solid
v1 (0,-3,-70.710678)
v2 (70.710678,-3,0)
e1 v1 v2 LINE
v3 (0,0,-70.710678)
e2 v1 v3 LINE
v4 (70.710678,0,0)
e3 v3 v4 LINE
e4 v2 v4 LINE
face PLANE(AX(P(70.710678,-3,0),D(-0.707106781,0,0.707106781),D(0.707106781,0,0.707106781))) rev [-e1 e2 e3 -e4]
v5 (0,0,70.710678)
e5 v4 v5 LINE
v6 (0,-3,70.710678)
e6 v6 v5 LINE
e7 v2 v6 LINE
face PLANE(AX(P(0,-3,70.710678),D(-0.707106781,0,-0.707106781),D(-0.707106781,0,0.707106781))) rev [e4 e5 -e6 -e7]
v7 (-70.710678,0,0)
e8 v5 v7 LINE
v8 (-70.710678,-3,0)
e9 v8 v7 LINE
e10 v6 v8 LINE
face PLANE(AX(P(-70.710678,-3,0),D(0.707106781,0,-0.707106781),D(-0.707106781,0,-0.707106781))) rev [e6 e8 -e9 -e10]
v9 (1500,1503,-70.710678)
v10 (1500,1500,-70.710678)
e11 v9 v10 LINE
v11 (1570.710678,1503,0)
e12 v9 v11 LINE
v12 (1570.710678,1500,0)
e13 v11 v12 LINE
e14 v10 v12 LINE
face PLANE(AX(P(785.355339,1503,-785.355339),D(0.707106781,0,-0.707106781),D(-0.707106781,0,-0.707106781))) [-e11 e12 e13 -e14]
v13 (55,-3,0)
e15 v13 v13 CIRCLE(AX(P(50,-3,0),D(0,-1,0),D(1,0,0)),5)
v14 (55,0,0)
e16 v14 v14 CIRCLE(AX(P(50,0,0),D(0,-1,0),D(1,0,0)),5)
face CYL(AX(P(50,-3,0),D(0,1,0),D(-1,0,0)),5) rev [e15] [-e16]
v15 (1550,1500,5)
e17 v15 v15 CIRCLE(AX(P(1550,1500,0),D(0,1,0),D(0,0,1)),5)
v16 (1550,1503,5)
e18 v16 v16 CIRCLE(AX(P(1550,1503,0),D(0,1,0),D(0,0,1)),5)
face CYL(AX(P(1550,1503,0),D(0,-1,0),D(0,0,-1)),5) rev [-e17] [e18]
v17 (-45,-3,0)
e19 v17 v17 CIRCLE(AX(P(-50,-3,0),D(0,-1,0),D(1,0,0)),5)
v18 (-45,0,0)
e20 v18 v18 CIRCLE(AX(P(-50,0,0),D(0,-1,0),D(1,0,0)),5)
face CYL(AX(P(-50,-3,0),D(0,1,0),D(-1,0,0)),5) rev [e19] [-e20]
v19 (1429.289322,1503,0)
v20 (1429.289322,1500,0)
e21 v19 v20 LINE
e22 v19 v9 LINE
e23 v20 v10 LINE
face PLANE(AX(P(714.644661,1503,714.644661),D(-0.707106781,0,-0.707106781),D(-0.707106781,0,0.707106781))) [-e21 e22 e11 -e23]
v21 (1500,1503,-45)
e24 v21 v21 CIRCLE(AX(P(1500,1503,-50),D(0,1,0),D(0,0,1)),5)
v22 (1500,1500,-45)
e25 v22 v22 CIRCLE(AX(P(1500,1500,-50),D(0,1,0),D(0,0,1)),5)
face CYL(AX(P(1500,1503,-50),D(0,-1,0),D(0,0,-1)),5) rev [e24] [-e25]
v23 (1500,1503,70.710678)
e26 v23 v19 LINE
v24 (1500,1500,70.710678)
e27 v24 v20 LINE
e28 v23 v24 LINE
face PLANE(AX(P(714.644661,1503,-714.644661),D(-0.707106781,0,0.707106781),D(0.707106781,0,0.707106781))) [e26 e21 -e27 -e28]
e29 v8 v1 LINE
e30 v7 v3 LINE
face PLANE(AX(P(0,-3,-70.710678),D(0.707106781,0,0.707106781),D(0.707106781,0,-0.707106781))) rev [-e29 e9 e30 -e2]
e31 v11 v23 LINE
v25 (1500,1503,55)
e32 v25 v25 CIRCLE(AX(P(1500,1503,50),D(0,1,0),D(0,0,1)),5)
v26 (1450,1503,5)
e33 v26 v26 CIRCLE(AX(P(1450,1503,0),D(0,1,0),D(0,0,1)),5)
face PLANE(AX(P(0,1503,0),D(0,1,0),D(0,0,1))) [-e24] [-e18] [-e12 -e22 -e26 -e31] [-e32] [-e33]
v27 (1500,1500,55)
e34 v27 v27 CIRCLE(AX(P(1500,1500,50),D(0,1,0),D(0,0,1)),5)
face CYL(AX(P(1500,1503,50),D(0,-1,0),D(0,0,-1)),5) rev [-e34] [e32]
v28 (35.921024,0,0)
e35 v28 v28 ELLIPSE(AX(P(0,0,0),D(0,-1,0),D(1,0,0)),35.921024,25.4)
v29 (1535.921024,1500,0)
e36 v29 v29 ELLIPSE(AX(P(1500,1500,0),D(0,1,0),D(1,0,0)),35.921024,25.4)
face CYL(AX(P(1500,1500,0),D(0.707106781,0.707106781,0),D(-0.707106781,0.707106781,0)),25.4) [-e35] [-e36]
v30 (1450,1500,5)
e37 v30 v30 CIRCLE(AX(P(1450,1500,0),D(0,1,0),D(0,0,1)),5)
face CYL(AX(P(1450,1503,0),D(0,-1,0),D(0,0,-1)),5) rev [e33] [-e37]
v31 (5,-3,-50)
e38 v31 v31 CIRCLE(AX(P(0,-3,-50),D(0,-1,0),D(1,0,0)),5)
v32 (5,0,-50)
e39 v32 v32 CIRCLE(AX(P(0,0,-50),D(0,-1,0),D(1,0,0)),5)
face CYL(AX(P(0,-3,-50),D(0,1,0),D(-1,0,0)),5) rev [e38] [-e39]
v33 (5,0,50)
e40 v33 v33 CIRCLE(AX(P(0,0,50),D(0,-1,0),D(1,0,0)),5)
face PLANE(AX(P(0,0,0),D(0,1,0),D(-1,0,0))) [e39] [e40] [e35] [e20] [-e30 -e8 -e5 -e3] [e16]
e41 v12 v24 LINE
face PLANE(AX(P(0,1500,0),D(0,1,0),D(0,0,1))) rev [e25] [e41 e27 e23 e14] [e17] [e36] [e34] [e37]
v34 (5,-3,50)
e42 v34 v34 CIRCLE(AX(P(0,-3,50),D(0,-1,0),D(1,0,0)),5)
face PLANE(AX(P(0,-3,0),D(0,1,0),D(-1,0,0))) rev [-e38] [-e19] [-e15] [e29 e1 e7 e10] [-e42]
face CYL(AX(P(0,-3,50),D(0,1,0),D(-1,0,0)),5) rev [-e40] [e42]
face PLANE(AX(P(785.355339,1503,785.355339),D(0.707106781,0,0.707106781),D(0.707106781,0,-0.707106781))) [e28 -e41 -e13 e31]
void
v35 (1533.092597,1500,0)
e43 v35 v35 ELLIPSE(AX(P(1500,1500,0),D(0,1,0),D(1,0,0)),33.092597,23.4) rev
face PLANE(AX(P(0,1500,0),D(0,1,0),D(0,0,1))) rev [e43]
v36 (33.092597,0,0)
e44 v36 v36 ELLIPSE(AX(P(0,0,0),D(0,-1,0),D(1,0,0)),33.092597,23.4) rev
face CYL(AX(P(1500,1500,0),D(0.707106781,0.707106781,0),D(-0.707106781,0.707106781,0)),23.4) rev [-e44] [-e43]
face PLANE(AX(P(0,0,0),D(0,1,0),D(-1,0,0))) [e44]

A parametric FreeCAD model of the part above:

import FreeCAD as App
import Part
import Sketcher

V = App.Vector
Q = App.Units.Quantity

doc = App.newDocument("Part")
body = doc.addObject("PartDesign::Body", "Body")

# Sketch on XY plane
sketch1 = body.newObject("Sketcher::SketchObject", "Sketch")
sketch1.AttachmentSupport = (doc.getObject("XY_Plane"), [""])
sketch1.MapMode = "FlatFace"
sketch1.addGeometry([
    Part.LineSegment(V(0, -35.9, 0), V(1535.9, 1500, 0)),
    Part.LineSegment(V(1535.9, 1500, 0), V(1534.5, 1501.4, 0)),
    Part.LineSegment(V(1534.5, 1501.4, 0), V(-1.4, -34.5, 0)),
    Part.LineSegment(V(-1.4, -34.5, 0), V(0, -35.9, 0)),
], False)
sketch1.addGeometry(Part.LineSegment(V(1518, 1518, 0), V(-18, -18, 0)), True)  # axis
sketch1.addConstraint([
    Sketcher.Constraint("Coincident", 0, 2, 1, 1),
    Sketcher.Constraint("Coincident", 1, 2, 2, 1),
    Sketcher.Constraint("Coincident", 2, 2, 3, 1),
    Sketcher.Constraint("Coincident", 3, 2, 0, 1),
    Sketcher.Constraint("PointOnObject", 3, 2, -2),
    Sketcher.Constraint("Perpendicular", 0, 1),
    Sketcher.Constraint("Parallel", 0, 2),
    Sketcher.Constraint("Perpendicular", 2, 3),
    Sketcher.Constraint("Parallel", 2, 4),
    Sketcher.Constraint("Equal", 2, 4),
    Sketcher.Constraint("Angle", 0, Q("45 deg")),
    Sketcher.Constraint("Distance", 1, 2.0),
    Sketcher.Constraint("DistanceY", -1, 1, 0, 2, 1500.0),
    Sketcher.Constraint("DistanceX", 4, 1, 1, 2, 16.546299),
    Sketcher.Constraint("DistanceY", 1, 2, 4, 1, 16.546299),
    Sketcher.Constraint("DistanceX", -1, 1, 1, 2, 1534.506811),
])
revolution = body.newObject("PartDesign::Revolution", "Revolution")
revolution.Profile = sketch1
revolution.ReferenceAxis = (sketch1, ["Axis0"])
revolution.Angle = 360

# Sketch on XY plane
sketch2 = body.newObject("Sketcher::SketchObject", "Sketch001")
sketch2.AttachmentSupport = (doc.getObject("XY_Plane"), [""])
sketch2.MapMode = "FlatFace"
sketch2.addGeometry([
    Part.LineSegment(V(36, 0, 0), V(-36, 0, 0)),  # 0
    Part.LineSegment(V(-36, 0, 0), V(0, -36, 0)),  # 1
    Part.LineSegment(V(0, -36, 0), V(36, 0, 0)),  # 2
    Part.LineSegment(V(1464, 1500, 0), V(1536, 1500, 0)),  # 3
    Part.LineSegment(V(1536, 1500, 0), V(1500, 1536, 0)),  # 4
    Part.LineSegment(V(1500, 1536, 0), V(1464, 1500, 0)),  # 5
], False)
sketch2.addConstraint([
    Sketcher.Constraint("Coincident", 0, 2, 1, 1),
    Sketcher.Constraint("Coincident", 1, 2, 2, 1),
    Sketcher.Constraint("Coincident", 2, 2, 0, 1),
    Sketcher.Constraint("Coincident", 3, 2, 4, 1),
    Sketcher.Constraint("Coincident", 4, 2, 5, 1),
    Sketcher.Constraint("Coincident", 5, 2, 3, 1),
    Sketcher.Constraint("Horizontal", 0),
    Sketcher.Constraint("Horizontal", 3),
    Sketcher.Constraint("Symmetric", 0, 2, 2, 2, -1, 1),
    Sketcher.Constraint("PointOnObject", 1, 2, -2),
    Sketcher.Constraint("Perpendicular", 1, 2),
    Sketcher.Constraint("Perpendicular", 2, 4),
    Sketcher.Constraint("Perpendicular", 4, 5),
    Sketcher.Constraint("Equal", 0, 3),
    Sketcher.Constraint("DistanceY", -1, 1, 3, 2, 1500.0),
    Sketcher.Constraint("DistanceX", -1, 1, 4, 2, 1500.0),
    Sketcher.Constraint("Distance", 1, 50.8),
])
pocket1 = body.newObject("PartDesign::Pocket", "Pocket")
pocket1.Profile = sketch2
pocket1.Type = "ThroughAll"
pocket1.Midplane = True

# Sketch on XZ plane
sketch3 = body.newObject("Sketcher::SketchObject", "Sketch002")
sketch3.AttachmentSupport = (doc.getObject("XZ_Plane"), [""])
sketch3.MapMode = "FlatFace"
sketch3.addGeometry([
    Part.LineSegment(V(0, 71, 0), V(-71, 0, 0)),  # 0
    Part.LineSegment(V(-71, 0, 0), V(0, -71, 0)),  # 1
    Part.LineSegment(V(0, -71, 0), V(71, 0, 0)),  # 2
    Part.LineSegment(V(71, 0, 0), V(0, 71, 0)),  # 3
    Part.Circle(V(0, -50, 0), V(0, 0, 1), 5),  # 4
    Part.Circle(V(50, 0, 0), V(0, 0, 1), 5),  # 5
    Part.Circle(V(-50, 0, 0), V(0, 0, 1), 5),  # 6
    Part.Circle(V(0, 50, 0), V(0, 0, 1), 5),  # 7
], False)
sketch3.addConstraint([
    Sketcher.Constraint("Coincident", 0, 2, 1, 1),
    Sketcher.Constraint("Coincident", 1, 2, 2, 1),
    Sketcher.Constraint("Coincident", 2, 2, 3, 1),
    Sketcher.Constraint("Coincident", 3, 2, 0, 1),
    Sketcher.Constraint("Equal", 4, 5),
    Sketcher.Constraint("Equal", 5, 6),
    Sketcher.Constraint("Equal", 6, 7),
    Sketcher.Constraint("Symmetric", 5, 3, 6, 3, -1, 1),
    Sketcher.Constraint("Symmetric", 4, 3, 7, 3, -1, 1),
    Sketcher.Constraint("Symmetric", 0, 2, 2, 2, -1, 1),
    Sketcher.Constraint("Symmetric", 1, 2, 3, 2, -1, 1),
    Sketcher.Constraint("PointOnObject", 4, 3, -2),
    Sketcher.Constraint("PointOnObject", 5, 3, -1),
    Sketcher.Constraint("PointOnObject", 0, 2, -1),
    Sketcher.Constraint("PointOnObject", 1, 2, -2),
    Sketcher.Constraint("Perpendicular", 0, 1),
    Sketcher.Constraint("Diameter", 4, 10.0),
    Sketcher.Constraint("Distance", 0, 100.0),
    Sketcher.Constraint("DistanceY", 4, 3, -1, 1, 50.0),
    Sketcher.Constraint("DistanceX", -1, 1, 5, 3, 50.0),
])
pad1 = body.newObject("PartDesign::Pad", "Pad")
pad1.Profile = sketch3
pad1.Length = 3

# Sketch on XZ plane
sketch4 = body.newObject("Sketcher::SketchObject", "Sketch003")
sketch4.AttachmentSupport = (doc.getObject("XZ_Plane"), [""])
sketch4.MapMode = "FlatFace"
sketch4.AttachmentOffset = App.Placement(V(0, 0, -1500), App.Rotation())
sketch4.addGeometry([
    Part.LineSegment(V(1571, 0, 0), V(1500, -71, 0)),  # 0
    Part.LineSegment(V(1500, -71, 0), V(1429, 0, 0)),  # 1
    Part.LineSegment(V(1429, 0, 0), V(1500, 71, 0)),  # 2
    Part.LineSegment(V(1500, 71, 0), V(1571, 0, 0)),  # 3
    Part.Circle(V(1500, 50, 0), V(0, 0, 1), 5),  # 4
    Part.Circle(V(1550, 0, 0), V(0, 0, 1), 5),  # 5
    Part.Circle(V(1450, 0, 0), V(0, 0, 1), 5),  # 6
    Part.Circle(V(1500, -50, 0), V(0, 0, 1), 5),  # 7
], False)
sketch4.addConstraint([
    Sketcher.Constraint("Coincident", 0, 2, 1, 1),
    Sketcher.Constraint("Coincident", 1, 2, 2, 1),
    Sketcher.Constraint("Coincident", 2, 2, 3, 1),
    Sketcher.Constraint("Coincident", 3, 2, 0, 1),
    Sketcher.Constraint("Equal", 4, 5),
    Sketcher.Constraint("Equal", 5, 6),
    Sketcher.Constraint("Equal", 6, 7),
    Sketcher.Constraint("Symmetric", 4, 3, 7, 3, -1),
    Sketcher.Constraint("Symmetric", 0, 2, 2, 2, -1),
    Sketcher.Constraint("PointOnObject", 5, 3, -1),
    Sketcher.Constraint("PointOnObject", 6, 3, -1),
    Sketcher.Constraint("PointOnObject", 1, 2, -1),
    Sketcher.Constraint("PointOnObject", 3, 2, -1),
    Sketcher.Constraint("Perpendicular", 0, 1),
    Sketcher.Constraint("Perpendicular", 1, 2),
    Sketcher.Constraint("Vertical", 7, 3, 0, 2),
    Sketcher.Constraint("Diameter", 4, 10.0),
    Sketcher.Constraint("Distance", 0, 100.0),
    Sketcher.Constraint("DistanceX", -1, 1, 4, 3, 1500.0),
    Sketcher.Constraint("DistanceY", -1, 1, 4, 3, 50.0),
    Sketcher.Constraint("DistanceX", -1, 1, 5, 3, 1550.0),
    Sketcher.Constraint("DistanceX", -1, 1, 6, 3, 1450.0),
])
pad2 = body.newObject("PartDesign::Pad", "Pad001")
pad2.Profile = sketch4
pad2.Length = 3
pad2.Reversed = True

doc.recompute()
